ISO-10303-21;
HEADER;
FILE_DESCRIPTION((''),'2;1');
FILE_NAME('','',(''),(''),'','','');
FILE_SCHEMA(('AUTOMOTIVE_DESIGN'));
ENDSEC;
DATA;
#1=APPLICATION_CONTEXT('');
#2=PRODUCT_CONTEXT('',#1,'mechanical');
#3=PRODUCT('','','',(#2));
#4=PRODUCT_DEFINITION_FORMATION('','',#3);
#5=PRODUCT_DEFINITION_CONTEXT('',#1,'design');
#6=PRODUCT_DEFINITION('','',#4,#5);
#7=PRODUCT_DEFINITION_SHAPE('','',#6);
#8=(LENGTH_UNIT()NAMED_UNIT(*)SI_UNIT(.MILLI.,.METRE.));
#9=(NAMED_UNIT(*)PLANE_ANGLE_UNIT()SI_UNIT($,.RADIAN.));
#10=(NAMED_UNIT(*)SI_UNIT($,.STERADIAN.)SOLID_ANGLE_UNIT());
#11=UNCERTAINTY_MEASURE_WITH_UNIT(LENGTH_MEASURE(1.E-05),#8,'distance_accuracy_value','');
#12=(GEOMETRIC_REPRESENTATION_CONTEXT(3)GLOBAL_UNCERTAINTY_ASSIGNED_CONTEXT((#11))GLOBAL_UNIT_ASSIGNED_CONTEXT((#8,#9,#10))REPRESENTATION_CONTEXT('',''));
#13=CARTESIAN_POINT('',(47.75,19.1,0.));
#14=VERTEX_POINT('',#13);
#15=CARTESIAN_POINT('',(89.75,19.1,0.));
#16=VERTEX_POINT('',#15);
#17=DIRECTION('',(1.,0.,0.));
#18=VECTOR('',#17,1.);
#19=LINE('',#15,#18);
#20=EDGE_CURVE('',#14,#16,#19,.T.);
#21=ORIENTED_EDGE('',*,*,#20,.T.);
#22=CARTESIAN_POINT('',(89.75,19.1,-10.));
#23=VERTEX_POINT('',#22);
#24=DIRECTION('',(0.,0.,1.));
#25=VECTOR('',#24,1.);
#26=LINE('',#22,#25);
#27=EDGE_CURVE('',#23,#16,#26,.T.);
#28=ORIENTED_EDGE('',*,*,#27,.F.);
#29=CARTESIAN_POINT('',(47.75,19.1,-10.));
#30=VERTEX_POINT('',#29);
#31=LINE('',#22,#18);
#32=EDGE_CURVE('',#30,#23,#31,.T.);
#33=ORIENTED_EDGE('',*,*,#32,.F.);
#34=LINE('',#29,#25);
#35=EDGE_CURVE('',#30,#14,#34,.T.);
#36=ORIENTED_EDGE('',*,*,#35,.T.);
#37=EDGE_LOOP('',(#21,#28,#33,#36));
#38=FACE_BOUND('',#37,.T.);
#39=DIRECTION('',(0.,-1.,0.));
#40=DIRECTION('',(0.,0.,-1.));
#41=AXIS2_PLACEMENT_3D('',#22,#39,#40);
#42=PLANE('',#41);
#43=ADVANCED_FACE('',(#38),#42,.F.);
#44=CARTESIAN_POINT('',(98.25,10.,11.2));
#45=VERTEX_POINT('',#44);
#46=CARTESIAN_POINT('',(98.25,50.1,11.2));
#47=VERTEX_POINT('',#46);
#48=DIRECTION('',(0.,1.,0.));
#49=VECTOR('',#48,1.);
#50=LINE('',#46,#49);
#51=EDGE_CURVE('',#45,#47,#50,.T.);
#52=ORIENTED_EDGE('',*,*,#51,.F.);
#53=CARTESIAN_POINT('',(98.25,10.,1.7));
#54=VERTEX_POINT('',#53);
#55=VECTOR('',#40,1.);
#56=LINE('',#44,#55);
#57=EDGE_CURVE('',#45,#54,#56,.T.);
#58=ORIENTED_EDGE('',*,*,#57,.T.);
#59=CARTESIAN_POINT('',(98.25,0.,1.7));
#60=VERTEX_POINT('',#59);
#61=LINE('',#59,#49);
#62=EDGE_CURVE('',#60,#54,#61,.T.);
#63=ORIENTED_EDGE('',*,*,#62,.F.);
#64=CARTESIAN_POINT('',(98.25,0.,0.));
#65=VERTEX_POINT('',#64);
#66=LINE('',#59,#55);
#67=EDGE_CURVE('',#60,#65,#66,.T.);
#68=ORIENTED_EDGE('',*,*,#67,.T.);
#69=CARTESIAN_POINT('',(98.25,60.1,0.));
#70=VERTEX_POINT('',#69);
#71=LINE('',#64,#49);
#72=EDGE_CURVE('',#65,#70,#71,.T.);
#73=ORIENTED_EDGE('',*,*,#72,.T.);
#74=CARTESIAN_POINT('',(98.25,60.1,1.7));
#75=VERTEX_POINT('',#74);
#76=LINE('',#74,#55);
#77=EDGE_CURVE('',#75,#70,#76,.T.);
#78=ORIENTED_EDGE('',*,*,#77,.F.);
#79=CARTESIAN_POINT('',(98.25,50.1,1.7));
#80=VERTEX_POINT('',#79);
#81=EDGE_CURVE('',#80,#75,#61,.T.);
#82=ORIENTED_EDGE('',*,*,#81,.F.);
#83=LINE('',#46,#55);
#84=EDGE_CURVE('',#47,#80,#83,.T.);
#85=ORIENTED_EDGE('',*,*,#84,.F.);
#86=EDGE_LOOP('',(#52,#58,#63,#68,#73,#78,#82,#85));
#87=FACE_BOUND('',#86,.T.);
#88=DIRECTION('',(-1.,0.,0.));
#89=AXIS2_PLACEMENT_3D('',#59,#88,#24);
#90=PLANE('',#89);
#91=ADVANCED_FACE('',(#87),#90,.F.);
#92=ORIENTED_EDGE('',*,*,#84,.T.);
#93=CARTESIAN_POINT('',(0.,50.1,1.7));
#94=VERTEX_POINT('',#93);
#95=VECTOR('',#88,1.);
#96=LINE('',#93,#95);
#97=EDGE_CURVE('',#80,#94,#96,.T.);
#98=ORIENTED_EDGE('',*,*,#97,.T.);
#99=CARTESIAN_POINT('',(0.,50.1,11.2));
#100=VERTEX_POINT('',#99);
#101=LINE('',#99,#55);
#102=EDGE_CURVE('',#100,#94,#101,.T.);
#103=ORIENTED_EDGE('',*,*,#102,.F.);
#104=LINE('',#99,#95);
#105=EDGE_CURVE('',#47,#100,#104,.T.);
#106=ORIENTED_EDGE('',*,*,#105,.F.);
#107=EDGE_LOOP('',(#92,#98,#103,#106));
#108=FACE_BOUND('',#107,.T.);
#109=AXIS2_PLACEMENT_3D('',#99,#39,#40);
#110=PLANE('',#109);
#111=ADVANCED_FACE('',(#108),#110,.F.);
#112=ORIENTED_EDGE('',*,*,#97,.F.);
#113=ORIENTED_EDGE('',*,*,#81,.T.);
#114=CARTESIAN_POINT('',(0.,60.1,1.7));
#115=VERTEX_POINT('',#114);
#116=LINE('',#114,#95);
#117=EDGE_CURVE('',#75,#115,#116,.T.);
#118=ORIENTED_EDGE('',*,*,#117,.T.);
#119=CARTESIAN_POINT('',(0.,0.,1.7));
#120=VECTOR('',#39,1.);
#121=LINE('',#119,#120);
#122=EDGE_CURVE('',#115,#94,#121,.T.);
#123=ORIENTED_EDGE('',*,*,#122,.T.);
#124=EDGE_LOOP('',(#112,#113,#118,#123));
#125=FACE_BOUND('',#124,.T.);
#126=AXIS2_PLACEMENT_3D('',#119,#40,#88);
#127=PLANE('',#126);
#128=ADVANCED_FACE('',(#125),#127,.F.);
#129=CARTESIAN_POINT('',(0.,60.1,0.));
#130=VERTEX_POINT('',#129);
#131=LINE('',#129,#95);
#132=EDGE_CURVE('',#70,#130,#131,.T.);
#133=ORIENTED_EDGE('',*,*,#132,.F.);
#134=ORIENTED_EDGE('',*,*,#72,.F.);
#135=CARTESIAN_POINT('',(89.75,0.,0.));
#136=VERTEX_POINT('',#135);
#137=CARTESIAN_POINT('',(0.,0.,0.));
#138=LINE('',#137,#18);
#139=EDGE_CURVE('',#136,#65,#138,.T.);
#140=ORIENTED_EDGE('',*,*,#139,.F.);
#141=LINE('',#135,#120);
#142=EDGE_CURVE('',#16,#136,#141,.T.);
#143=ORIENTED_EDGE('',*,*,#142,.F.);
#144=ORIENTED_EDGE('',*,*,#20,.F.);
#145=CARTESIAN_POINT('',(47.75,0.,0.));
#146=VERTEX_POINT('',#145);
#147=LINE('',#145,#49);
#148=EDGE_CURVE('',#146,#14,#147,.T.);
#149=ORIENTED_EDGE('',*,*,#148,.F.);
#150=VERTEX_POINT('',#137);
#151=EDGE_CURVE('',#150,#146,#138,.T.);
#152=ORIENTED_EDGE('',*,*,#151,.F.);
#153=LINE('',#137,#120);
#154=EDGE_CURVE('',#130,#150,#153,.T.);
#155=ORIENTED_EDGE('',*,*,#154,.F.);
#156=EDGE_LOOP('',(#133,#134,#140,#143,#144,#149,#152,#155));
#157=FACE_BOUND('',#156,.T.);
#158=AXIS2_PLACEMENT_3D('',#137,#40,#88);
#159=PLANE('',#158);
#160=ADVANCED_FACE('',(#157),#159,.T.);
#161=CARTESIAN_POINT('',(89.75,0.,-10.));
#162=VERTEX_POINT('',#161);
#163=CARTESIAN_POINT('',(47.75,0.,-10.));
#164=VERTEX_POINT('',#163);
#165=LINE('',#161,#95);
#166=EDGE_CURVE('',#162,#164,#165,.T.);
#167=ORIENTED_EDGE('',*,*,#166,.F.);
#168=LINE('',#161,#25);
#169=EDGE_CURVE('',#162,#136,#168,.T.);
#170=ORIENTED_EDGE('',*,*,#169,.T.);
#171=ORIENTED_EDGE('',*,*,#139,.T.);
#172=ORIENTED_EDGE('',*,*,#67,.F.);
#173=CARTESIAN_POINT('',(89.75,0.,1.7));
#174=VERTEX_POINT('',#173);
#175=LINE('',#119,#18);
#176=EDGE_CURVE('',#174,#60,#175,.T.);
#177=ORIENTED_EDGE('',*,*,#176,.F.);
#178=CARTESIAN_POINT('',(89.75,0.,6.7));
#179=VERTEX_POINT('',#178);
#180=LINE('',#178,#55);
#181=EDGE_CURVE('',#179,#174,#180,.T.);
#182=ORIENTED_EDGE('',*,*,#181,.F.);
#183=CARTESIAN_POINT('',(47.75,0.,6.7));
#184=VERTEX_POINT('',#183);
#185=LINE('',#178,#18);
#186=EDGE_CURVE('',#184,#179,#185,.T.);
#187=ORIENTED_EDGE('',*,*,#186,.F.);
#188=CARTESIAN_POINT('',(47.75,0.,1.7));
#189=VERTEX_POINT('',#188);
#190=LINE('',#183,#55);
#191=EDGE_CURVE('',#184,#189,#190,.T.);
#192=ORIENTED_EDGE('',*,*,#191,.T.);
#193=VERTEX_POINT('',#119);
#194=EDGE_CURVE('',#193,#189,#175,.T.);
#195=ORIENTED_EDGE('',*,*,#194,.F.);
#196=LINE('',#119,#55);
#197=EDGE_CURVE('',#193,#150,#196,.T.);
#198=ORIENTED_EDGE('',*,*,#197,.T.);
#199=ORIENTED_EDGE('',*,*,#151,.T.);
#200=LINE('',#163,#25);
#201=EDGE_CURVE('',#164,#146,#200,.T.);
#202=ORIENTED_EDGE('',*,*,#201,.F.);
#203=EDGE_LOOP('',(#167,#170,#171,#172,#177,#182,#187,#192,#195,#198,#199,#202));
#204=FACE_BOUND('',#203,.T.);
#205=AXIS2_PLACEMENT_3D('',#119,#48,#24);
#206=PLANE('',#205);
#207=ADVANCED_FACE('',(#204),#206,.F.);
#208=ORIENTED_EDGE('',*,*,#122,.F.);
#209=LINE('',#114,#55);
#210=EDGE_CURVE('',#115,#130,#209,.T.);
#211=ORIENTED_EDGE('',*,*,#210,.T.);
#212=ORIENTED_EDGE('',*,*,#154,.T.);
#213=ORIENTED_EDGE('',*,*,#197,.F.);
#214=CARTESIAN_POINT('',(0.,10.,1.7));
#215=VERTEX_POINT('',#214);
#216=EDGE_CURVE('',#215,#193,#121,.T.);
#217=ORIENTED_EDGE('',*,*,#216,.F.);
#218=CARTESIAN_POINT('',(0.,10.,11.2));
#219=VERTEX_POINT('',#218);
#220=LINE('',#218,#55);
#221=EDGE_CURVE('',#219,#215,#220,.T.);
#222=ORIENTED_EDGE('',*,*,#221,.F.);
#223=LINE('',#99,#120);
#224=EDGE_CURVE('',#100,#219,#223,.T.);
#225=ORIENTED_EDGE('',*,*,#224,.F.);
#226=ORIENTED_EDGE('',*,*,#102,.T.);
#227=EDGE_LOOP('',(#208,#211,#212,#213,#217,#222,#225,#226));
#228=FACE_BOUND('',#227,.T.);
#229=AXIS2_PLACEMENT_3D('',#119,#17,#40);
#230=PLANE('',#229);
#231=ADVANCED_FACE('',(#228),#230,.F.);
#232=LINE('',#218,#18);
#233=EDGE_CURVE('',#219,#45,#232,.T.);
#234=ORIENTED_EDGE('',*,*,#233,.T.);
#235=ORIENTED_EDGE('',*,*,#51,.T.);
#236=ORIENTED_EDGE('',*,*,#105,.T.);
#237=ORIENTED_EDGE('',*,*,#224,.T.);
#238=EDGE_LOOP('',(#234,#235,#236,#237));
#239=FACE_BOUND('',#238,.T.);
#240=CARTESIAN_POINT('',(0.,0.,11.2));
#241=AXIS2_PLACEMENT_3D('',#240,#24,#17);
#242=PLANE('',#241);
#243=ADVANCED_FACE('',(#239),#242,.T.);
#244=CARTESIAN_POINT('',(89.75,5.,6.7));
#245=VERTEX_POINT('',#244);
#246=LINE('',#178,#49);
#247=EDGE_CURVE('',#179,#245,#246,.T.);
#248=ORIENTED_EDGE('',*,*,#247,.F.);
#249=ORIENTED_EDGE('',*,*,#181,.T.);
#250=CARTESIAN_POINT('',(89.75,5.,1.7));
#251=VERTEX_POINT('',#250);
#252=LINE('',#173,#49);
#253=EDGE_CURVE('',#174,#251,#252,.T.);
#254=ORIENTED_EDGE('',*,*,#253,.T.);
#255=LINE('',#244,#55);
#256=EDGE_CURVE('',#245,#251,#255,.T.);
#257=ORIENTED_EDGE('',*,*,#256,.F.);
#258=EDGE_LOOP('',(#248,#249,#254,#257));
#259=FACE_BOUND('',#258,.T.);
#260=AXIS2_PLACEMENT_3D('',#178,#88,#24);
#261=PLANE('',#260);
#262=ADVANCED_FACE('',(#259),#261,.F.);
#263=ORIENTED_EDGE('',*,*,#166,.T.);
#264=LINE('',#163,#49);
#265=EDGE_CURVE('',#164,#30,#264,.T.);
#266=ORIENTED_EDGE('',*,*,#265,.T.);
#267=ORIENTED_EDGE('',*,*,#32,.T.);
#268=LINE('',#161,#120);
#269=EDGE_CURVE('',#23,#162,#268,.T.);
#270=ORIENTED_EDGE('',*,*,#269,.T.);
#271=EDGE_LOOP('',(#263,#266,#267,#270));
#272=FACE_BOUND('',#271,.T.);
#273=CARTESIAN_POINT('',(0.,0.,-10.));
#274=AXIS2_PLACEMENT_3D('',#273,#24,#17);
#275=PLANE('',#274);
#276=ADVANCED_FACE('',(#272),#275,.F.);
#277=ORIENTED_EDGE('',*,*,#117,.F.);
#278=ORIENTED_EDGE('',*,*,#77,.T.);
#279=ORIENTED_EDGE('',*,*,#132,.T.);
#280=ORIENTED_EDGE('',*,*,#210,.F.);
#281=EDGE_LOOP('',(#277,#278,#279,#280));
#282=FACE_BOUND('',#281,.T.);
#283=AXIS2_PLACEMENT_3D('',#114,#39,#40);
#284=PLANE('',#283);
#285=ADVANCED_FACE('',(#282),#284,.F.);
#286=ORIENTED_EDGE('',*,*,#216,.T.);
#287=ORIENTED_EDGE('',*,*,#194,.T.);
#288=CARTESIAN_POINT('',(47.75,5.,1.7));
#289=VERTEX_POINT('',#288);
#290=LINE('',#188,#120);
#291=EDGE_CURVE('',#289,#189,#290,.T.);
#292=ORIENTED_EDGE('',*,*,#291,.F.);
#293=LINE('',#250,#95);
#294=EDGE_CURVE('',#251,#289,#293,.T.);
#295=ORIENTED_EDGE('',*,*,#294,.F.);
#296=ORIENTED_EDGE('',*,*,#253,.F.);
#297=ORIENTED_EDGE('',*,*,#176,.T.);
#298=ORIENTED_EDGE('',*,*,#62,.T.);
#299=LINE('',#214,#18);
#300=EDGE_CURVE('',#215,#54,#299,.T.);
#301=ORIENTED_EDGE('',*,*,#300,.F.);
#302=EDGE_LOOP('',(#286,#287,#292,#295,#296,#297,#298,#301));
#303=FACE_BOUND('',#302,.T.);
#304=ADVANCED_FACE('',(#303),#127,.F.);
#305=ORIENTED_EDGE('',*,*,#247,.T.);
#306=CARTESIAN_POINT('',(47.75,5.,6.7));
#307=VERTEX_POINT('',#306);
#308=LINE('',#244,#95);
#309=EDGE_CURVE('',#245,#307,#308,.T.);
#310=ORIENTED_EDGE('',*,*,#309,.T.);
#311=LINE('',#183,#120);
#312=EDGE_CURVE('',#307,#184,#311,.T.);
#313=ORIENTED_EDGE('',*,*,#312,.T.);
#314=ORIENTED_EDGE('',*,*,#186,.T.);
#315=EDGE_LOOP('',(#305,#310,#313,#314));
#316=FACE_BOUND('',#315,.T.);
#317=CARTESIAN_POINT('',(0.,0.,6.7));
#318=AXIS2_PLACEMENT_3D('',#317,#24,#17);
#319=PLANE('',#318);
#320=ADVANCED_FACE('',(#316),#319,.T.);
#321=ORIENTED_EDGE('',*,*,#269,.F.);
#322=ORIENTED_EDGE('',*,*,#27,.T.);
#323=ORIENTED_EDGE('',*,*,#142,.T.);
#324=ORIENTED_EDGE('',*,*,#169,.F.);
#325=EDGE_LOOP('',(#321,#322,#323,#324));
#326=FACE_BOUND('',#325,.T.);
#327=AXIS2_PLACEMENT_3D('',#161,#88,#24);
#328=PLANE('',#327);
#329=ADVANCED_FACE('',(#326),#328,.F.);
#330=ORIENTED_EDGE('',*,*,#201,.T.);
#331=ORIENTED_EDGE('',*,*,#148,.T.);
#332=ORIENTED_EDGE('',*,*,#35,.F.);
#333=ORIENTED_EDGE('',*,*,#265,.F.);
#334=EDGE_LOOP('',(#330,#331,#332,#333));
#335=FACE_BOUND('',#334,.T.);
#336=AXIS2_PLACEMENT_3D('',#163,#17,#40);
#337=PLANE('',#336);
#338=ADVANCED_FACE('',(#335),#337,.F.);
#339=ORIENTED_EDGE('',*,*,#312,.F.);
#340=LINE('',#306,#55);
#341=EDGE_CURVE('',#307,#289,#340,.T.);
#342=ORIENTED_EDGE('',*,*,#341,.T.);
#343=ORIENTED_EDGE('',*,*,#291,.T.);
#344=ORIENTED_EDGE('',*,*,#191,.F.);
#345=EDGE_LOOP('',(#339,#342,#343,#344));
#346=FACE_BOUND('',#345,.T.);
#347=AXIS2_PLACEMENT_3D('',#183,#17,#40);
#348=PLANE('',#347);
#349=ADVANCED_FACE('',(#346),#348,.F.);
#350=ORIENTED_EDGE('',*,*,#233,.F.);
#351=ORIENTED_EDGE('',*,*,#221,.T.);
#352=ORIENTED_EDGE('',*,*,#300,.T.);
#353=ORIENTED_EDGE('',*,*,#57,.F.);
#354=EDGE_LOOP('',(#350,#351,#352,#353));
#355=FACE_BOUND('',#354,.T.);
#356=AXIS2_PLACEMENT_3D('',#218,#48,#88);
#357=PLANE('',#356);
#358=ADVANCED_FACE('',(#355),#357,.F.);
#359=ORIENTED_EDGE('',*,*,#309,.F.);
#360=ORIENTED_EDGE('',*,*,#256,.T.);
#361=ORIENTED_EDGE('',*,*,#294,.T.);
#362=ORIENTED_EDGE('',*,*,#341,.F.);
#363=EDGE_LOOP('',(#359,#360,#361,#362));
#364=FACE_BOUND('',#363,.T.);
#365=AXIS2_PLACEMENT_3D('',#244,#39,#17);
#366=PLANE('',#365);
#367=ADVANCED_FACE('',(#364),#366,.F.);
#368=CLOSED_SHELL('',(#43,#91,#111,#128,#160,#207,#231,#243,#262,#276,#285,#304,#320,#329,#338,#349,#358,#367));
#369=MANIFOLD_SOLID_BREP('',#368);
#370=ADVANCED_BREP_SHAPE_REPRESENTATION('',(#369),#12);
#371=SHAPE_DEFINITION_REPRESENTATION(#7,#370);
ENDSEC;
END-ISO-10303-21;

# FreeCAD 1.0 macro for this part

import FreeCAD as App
import Part
import Sketcher

V = App.Vector
Q = App.Units.Quantity

doc = App.newDocument("Part")
params = doc.addObject("Spreadsheet::Sheet", "Params")
for row, (alias, value) in enumerate([
    ("sketch1_height", "60.1 mm"),
    ("sketch1_width", "98.25 mm"),
    ("pad1_length", "1.7 mm"),
    ("sketch2_height", "40.1 mm"),
    ("sketch2_width", "98.25 mm"),
    ("pad2_length", "9.5 mm"),
    ("sketch3_width", "42 mm"),
    ("sketch3_height", "5 mm"),
    ("pad3_length", "5 mm"),
    ("sketch4_width", "42 mm"),
    ("sketch4_height", "19.1 mm"),
    ("pad4_length", "10 mm"),
], start=1):
    params.set(f"A{row}", alias)
    params.set(f"B{row}", "=" + value)
    params.setAlias(f"B{row}", alias)

body = doc.addObject("PartDesign::Body", "Body")

sketch1 = body.newObject("Sketcher::SketchObject", "Sketch")
sketch1.AttachmentSupport = (doc.getObject("XY_Plane"), [""])
sketch1.MapMode = "FlatFace"
sketch1.addGeometry(Part.LineSegment(V(0, 60, 0), V(0, 0, 0)), False)
sketch1.addGeometry(Part.LineSegment(V(0, 0, 0), V(98, 0, 0)), False)
sketch1.addGeometry(Part.LineSegment(V(98, 0, 0), V(98, 60, 0)), False)
sketch1.addGeometry(Part.LineSegment(V(98, 60, 0), V(0, 60, 0)), False)
sketch1.addConstraint(Sketcher.Constraint("Coincident", 0, 2, 1, 1))
sketch1.addConstraint(Sketcher.Constraint("Coincident", 1, 2, 2, 1))
sketch1.addConstraint(Sketcher.Constraint("Coincident", 2, 2, 3, 1))
sketch1.addConstraint(Sketcher.Constraint("Coincident", 3, 2, 0, 1))
sketch1.addConstraint(Sketcher.Constraint("Vertical", 0))
sketch1.addConstraint(Sketcher.Constraint("Horizontal", 1))
sketch1.addConstraint(Sketcher.Constraint("Vertical", 2))
sketch1.addConstraint(Sketcher.Constraint("Horizontal", 3))
sketch1.addConstraint(Sketcher.Constraint("Coincident", 0, 2, -1, 1))
sketch1.addConstraint(Sketcher.Constraint("DistanceY", 0, 2, 0, 1, Q("60.1 mm")))
sketch1.addConstraint(Sketcher.Constraint("DistanceX", 1, 1, 1, 2, Q("98.25 mm")))
sketch1.setExpression("Constraints[9]", "Params.sketch1_height")
sketch1.setExpression("Constraints[10]", "Params.sketch1_width")
pad1 = body.newObject("PartDesign::Pad", "Pad")
pad1.Profile = sketch1
pad1.setExpression("Length", "Params.pad1_length")

sketch2 = body.newObject("Sketcher::SketchObject", "Sketch001")
sketch2.AttachmentSupport = (doc.getObject("XY_Plane"), [""])
sketch2.MapMode = "FlatFace"
sketch2.AttachmentOffset = App.Placement(V(0, 0, 1.7), App.Rotation())
sketch2.addGeometry(Part.LineSegment(V(0, 50, 0), V(0, 10, 0)), False)
sketch2.addGeometry(Part.LineSegment(V(0, 10, 0), V(98, 10, 0)), False)
sketch2.addGeometry(Part.LineSegment(V(98, 10, 0), V(98, 50, 0)), False)
sketch2.addGeometry(Part.LineSegment(V(98, 50, 0), V(0, 50, 0)), False)
sketch2.addConstraint(Sketcher.Constraint("Coincident", 0, 2, 1, 1))
sketch2.addConstraint(Sketcher.Constraint("Coincident", 1, 2, 2, 1))
sketch2.addConstraint(Sketcher.Constraint("Coincident", 2, 2, 3, 1))
sketch2.addConstraint(Sketcher.Constraint("Coincident", 3, 2, 0, 1))
sketch2.addConstraint(Sketcher.Constraint("Vertical", 0))
sketch2.addConstraint(Sketcher.Constraint("Horizontal", 1))
sketch2.addConstraint(Sketcher.Constraint("Vertical", 2))
sketch2.addConstraint(Sketcher.Constraint("Horizontal", 3))
sketch2.addConstraint(Sketcher.Constraint("PointOnObject", 0, 2, -2))
sketch2.addConstraint(Sketcher.Constraint("DistanceY", 0, 2, 0, 1, Q("40.1 mm")))
sketch2.addConstraint(Sketcher.Constraint("DistanceY", -1, 1, 0, 2, Q("10 mm")))
sketch2.addConstraint(Sketcher.Constraint("DistanceX", 1, 1, 1, 2, Q("98.25 mm")))
sketch2.setExpression("Constraints[9]", "Params.sketch2_height")
sketch2.setExpression("Constraints[11]", "Params.sketch2_width")
pad2 = body.newObject("PartDesign::Pad", "Pad001")
pad2.Profile = sketch2
pad2.setExpression("Length", "Params.pad2_length")

sketch3 = body.newObject("Sketcher::SketchObject", "Sketch002")
sketch3.AttachmentSupport = (doc.getObject("XY_Plane"), [""])
sketch3.MapMode = "FlatFace"
sketch3.AttachmentOffset = App.Placement(V(0, 0, 1.7), App.Rotation())
sketch3.addGeometry(Part.LineSegment(V(48, 5, 0), V(48, 0, 0)), False)
sketch3.addGeometry(Part.LineSegment(V(48, 0, 0), V(90, 0, 0)), False)
sketch3.addGeometry(Part.LineSegment(V(90, 0, 0), V(90, 5, 0)), False)
sketch3.addGeometry(Part.LineSegment(V(90, 5, 0), V(48, 5, 0)), False)
sketch3.addConstraint(Sketcher.Constraint("Coincident", 0, 2, 1, 1))
sketch3.addConstraint(Sketcher.Constraint("Coincident", 1, 2, 2, 1))
sketch3.addConstraint(Sketcher.Constraint("Coincident", 2, 2, 3, 1))
sketch3.addConstraint(Sketcher.Constraint("Coincident", 3, 2, 0, 1))
sketch3.addConstraint(Sketcher.Constraint("Vertical", 0))
sketch3.addConstraint(Sketcher.Constraint("Horizontal", 1))
sketch3.addConstraint(Sketcher.Constraint("Vertical", 2))
sketch3.addConstraint(Sketcher.Constraint("Horizontal", 3))
sketch3.addConstraint(Sketcher.Constraint("PointOnObject", 0, 2, -1))
sketch3.addConstraint(Sketcher.Constraint("DistanceX", 1, 1, 1, 2, Q("42 mm")))
sketch3.addConstraint(Sketcher.Constraint("DistanceY", 0, 2, 0, 1, Q("5 mm")))
sketch3.addConstraint(Sketcher.Constraint("DistanceX", -1, 1, 0, 2, Q("47.75 mm")))
sketch3.setExpression("Constraints[9]", "Params.sketch3_width")
sketch3.setExpression("Constraints[10]", "Params.sketch3_height")
pad3 = body.newObject("PartDesign::Pad", "Pad002")
pad3.Profile = sketch3
pad3.setExpression("Length", "Params.pad3_length")

sketch4 = body.newObject("Sketcher::SketchObject", "Sketch003")
sketch4.AttachmentSupport = (doc.getObject("XY_Plane"), [""])
sketch4.MapMode = "FlatFace"
sketch4.addGeometry(Part.LineSegment(V(90, 19, 0), V(90, 0, 0)), False)
sketch4.addGeometry(Part.LineSegment(V(90, 0, 0), V(48, 0, 0)), False)
sketch4.addGeometry(Part.LineSegment(V(48, 0, 0), V(48, 19, 0)), False)
sketch4.addGeometry(Part.LineSegment(V(48, 19, 0), V(90, 19, 0)), False)
sketch4.addConstraint(Sketcher.Constraint("Coincident", 0, 2, 1, 1))
sketch4.addConstraint(Sketcher.Constraint("Coincident", 1, 2, 2, 1))
sketch4.addConstraint(Sketcher.Constraint("Coincident", 2, 2, 3, 1))
sketch4.addConstraint(Sketcher.Constraint("Coincident", 3, 2, 0, 1))
sketch4.addConstraint(Sketcher.Constraint("Vertical", 0))
sketch4.addConstraint(Sketcher.Constraint("Horizontal", 1))
sketch4.addConstraint(Sketcher.Constraint("Vertical", 2))
sketch4.addConstraint(Sketcher.Constraint("Horizontal", 3))
sketch4.addConstraint(Sketcher.Constraint("PointOnObject", 0, 2, -1))
sketch4.addConstraint(Sketcher.Constraint("DistanceX", 1, 2, 1, 1, Q("42 mm")))
sketch4.addConstraint(Sketcher.Constraint("DistanceY", 0, 2, 0, 1, Q("19.1 mm")))
sketch4.addConstraint(Sketcher.Constraint("DistanceX", -1, 1, 0, 2, Q("89.75 mm")))
sketch4.setExpression("Constraints[9]", "Params.sketch4_width")
sketch4.setExpression("Constraints[10]", "Params.sketch4_height")
pad4 = body.newObject("PartDesign::Pad", "Pad003")
pad4.Profile = sketch4
pad4.setExpression("Length", "Params.pad4_length")
pad4.Reversed = True

doc.recompute()
